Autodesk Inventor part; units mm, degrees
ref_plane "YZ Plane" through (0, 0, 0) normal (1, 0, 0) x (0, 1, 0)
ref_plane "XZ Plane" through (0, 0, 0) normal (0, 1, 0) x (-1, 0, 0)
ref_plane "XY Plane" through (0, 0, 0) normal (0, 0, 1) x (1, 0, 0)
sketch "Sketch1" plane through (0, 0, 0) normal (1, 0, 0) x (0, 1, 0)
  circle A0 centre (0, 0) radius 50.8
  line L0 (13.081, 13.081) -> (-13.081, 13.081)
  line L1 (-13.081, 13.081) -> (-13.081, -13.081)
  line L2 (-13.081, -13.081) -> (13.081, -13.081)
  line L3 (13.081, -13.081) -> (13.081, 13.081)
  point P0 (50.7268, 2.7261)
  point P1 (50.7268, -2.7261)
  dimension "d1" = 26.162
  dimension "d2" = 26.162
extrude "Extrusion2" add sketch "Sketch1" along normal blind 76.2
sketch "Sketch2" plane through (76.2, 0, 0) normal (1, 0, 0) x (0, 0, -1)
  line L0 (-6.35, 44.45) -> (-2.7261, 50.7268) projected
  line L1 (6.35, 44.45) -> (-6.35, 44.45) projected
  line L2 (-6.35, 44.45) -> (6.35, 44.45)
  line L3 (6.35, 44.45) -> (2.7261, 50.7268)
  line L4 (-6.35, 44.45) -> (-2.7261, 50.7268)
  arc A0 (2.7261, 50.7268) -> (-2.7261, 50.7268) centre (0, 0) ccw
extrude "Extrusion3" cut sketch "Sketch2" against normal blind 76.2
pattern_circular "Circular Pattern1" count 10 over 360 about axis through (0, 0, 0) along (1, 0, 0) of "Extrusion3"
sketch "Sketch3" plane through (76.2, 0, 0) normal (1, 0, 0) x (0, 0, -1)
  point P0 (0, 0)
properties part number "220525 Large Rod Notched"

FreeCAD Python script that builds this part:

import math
import FreeCAD as App
import Part
import Sketcher
from FreeCAD import Vector
Q = App.Units.Quantity


def add_polygon(sketch, points):
    """Adds a closed chain of lines whose ends are joined by coincident constraints."""
    first, n = sketch.GeometryCount, len(points)
    for a, b in zip(points, points[1:] + points[:1]):
        sketch.addGeometry(Part.LineSegment(App.Vector(*a, 0), App.Vector(*b, 0)), False)
    for i in range(n):
        sketch.addConstraint(Sketcher.Constraint("Coincident", first + i, 2, first + (i + 1) % n, 1))

doc = App.newDocument("Part")
body = doc.addObject("PartDesign::Body", "Body")

sketch1 = body.newObject("Sketcher::SketchObject", "Sketch")
sketch1.AttachmentSupport = (doc.getObject("YZ_Plane"), [""])
sketch1.MapMode = "FlatFace"
sketch1.addGeometry(Part.Circle(Vector(0, 0, 0), Vector(0, 0, 1), 50.8), False)
add_polygon(sketch1, [(-13.081, 13.081), (13.081, 13.081), (13.081, -13.081), (-13.081, -13.081)])
sketch1.addConstraint([
    Sketcher.Constraint("Horizontal", 1),
    Sketcher.Constraint("Vertical", 2),
    Sketcher.Constraint("Horizontal", 3),
    Sketcher.Constraint("Vertical", 4),
    Sketcher.Constraint("Coincident", 0, 3, -1, 1),
    Sketcher.Constraint("Symmetric", 1, 2, 3, 2, -1, 1),
    Sketcher.Constraint("Equal", 3, 2),
    Sketcher.Constraint("Diameter", 0, Q("4 in")),
    Sketcher.Constraint("DistanceX", 1, 1, 1, 2, Q("1.03 in")),
])
pad1 = body.newObject("PartDesign::Pad", "Pad")
pad1.Profile = sketch1
pad1.Length = Q("3 in")

sketch2 = body.newObject("Sketcher::SketchObject", "Sketch001")
sketch2.AttachmentSupport = (doc.getObject("YZ_Plane"), [""])
sketch2.MapMode = "FlatFace"
sketch2.AttachmentOffset = App.Placement(Vector(0, 0, 3 * 25.4), App.Rotation())
sketch2.addGeometry([
    Part.LineSegment(Vector(50.7268, 2.7261, 0), Vector(44.45, 6.35, 0)),
    Part.LineSegment(Vector(44.45, 6.35, 0), Vector(44.45, -6.35, 0)),
    Part.LineSegment(Vector(44.45, -6.35, 0), Vector(50.7268, -2.7261, 0)),
    Part.ArcOfCircle(Part.Circle(Vector(0, 0, 0), Vector(0, 0, 1), 50.799999), math.radians(-3.076163), math.radians(3.076163)),
], False)
sketch2.addConstraint([
    Sketcher.Constraint("Coincident", 0, 2, 1, 1),
    Sketcher.Constraint("Coincident", 1, 2, 2, 1),
    Sketcher.Constraint("Coincident", 2, 2, 3, 1),
    Sketcher.Constraint("Coincident", 3, 2, 0, 1),
    Sketcher.Constraint("Vertical", 1),
    Sketcher.Constraint("Coincident", 3, 3, -1, 1),
    Sketcher.Constraint("Vertical", 2, 2, 3, 2),
    Sketcher.Constraint("Equal", 0, 2),
    Sketcher.Constraint("Radius", 3, Q("2 in")),
    Sketcher.Constraint("DistanceY", 1, 2, 1, 1, Q("0.5 in")),
    Sketcher.Constraint("Angle", 0, Q("150 deg")),
    Sketcher.Constraint("DistanceX", -1, 1, 0, 2, Q("1.75 in")),
])
pocket1 = body.newObject("PartDesign::Pocket", "Pocket")
pocket1.Profile = sketch2
pocket1.Length = Q("3 in")
doc.recompute()

polarpattern = body.newObject("PartDesign::PolarPattern", "PolarPattern")
polarpattern.Originals = [pocket1]
polarpattern.Axis = (doc.getObject("X_Axis"), [""])
polarpattern.Angle = 360
polarpattern.Occurrences = 10
body.Tip = polarpattern

doc.recompute()
